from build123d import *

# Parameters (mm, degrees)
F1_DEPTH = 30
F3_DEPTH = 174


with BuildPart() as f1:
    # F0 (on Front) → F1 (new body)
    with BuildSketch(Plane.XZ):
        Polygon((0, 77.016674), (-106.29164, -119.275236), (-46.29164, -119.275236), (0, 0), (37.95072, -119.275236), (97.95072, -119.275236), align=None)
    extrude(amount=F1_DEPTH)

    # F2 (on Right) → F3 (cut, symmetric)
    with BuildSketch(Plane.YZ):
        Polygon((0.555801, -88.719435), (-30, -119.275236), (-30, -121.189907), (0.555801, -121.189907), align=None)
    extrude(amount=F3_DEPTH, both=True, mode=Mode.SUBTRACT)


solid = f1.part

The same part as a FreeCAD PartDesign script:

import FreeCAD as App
import Part
import Sketcher
from FreeCAD import Vector
Q = App.Units.Quantity


def add_polygon(sketch, points):
    """Adds a closed chain of lines whose ends are joined by coincident constraints."""
    first, n = sketch.GeometryCount, len(points)
    for a, b in zip(points, points[1:] + points[:1]):
        sketch.addGeometry(Part.LineSegment(App.Vector(*a, 0), App.Vector(*b, 0)), False)
    for i in range(n):
        sketch.addConstraint(Sketcher.Constraint("Coincident", first + i, 2, first + (i + 1) % n, 1))

doc = App.newDocument("Part")
params = doc.addObject("Spreadsheet::Sheet", "Params")
for row, (alias, value) in enumerate([
    ("sketch1_width", "60 mm"),
    ("pad1_length", "30 mm"),
    ("pocket1_length", "348 mm"),
], start=1):
    params.set(f"A{row}", alias)
    params.set(f"B{row}", "=" + value)
    params.setAlias(f"B{row}", alias)

body = doc.addObject("PartDesign::Body", "Body")

# Sketch on XZ plane
sketch1 = body.newObject("Sketcher::SketchObject", "Sketch")
sketch1.AttachmentSupport = (doc.getObject("XZ_Plane"), [""])
sketch1.MapMode = "FlatFace"
add_polygon(sketch1, [(0, 77), (-106, -119), (-46, -119), (0, 0), (38, -119), (98, -119)])  # lines 0-5
sketch1.addConstraint(Sketcher.Constraint("Horizontal", 1))
sketch1.addConstraint(Sketcher.Constraint("Horizontal", 4))
sketch1.addConstraint(Sketcher.Constraint("Coincident", 2, 2, -1, 1))
sketch1.addConstraint(Sketcher.Constraint("PointOnObject", 5, 2, -2))
sketch1.addConstraint(Sketcher.Constraint("Horizontal", 1, 2, 3, 2))
sketch1.addConstraint(Sketcher.Constraint("Equal", 1, 4))
sketch1.addConstraint(Sketcher.Constraint("DistanceX", 1, 1, 1, 2, Q("60 mm")))
sketch1.addConstraint(Sketcher.Constraint("Distance", 0, Q("223.222818 mm")))
sketch1.addConstraint(Sketcher.Constraint("Distance", 2, Q("127.943338 mm")))
sketch1.addConstraint(Sketcher.Constraint("DistanceX", 0, 2, -1, 1, Q("106.29164 mm")))
sketch1.addConstraint(Sketcher.Constraint("DistanceX", -1, 1, 3, 2, Q("37.95072 mm")))
sketch1.setExpression("Constraints[12]", "Params.sketch1_width")
pad1 = body.newObject("PartDesign::Pad", "Pad")
pad1.Profile = sketch1
pad1.setExpression("Length", "Params.pad1_length")

# Sketch on YZ plane
sketch2 = body.newObject("Sketcher::SketchObject", "Sketch001")
sketch2.AttachmentSupport = (doc.getObject("YZ_Plane"), [""])
sketch2.MapMode = "FlatFace"
add_polygon(sketch2, [(0.6, -88.7), (-30, -119.3), (-30, -121.2), (0.6, -121.2)])  # lines 0-3
sketch2.addConstraint(Sketcher.Constraint("Vertical", 1))
sketch2.addConstraint(Sketcher.Constraint("Horizontal", 2))
sketch2.addConstraint(Sketcher.Constraint("Vertical", 3))
sketch2.addConstraint(Sketcher.Constraint("Angle", 0, Q("-135 deg")))
sketch2.addConstraint(Sketcher.Constraint("DistanceX", 0, 2, -1, 1, Q("30 mm")))
sketch2.addConstraint(Sketcher.Constraint("DistanceX", 2, 1, 2, 2, Q("30.555801 mm")))
sketch2.addConstraint(Sketcher.Constraint("DistanceY", 1, 2, 1, 1, Q("1.914671 mm")))
sketch2.addConstraint(Sketcher.Constraint("DistanceY", 0, 2, -1, 1, Q("119.275236 mm")))
pocket1 = body.newObject("PartDesign::Pocket", "Pocket")
pocket1.Profile = sketch2
pocket1.setExpression("Length", "Params.pocket1_length")
pocket1.Midplane = True

doc.recompute()
